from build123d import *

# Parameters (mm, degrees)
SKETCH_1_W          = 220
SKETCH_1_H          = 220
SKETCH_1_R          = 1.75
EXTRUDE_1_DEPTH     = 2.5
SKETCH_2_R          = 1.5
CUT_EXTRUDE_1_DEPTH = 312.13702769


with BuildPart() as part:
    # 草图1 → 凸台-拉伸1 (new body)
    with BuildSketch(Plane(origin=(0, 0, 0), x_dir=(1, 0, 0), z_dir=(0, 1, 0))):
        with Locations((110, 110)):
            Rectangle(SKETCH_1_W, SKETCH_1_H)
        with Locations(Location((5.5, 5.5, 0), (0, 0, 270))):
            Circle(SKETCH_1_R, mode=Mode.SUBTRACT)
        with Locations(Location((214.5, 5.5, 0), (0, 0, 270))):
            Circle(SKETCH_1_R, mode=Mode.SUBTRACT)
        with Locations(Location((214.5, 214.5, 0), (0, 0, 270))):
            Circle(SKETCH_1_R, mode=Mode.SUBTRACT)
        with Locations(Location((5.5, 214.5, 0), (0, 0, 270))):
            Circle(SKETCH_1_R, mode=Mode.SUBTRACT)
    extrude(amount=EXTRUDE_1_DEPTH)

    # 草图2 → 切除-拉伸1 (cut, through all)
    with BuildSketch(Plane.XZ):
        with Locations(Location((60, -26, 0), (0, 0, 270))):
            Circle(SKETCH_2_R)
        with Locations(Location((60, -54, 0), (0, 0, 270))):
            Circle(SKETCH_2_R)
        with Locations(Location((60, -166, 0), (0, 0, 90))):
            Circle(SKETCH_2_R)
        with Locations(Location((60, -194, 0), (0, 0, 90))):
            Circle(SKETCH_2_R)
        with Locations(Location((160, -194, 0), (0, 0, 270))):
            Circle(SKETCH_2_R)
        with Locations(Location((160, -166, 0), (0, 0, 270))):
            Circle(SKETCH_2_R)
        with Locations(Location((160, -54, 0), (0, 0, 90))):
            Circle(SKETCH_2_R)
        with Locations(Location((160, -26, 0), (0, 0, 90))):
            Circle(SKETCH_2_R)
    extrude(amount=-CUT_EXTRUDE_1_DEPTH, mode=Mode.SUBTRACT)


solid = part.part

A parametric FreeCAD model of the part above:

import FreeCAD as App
import Part
import Sketcher

V = App.Vector


def add_polygon(sketch, points):
    """Adds a closed chain of lines whose ends are joined by coincident constraints."""
    first, n = sketch.GeometryCount, len(points)
    for a, b in zip(points, points[1:] + points[:1]):
        sketch.addGeometry(Part.LineSegment(App.Vector(*a, 0), App.Vector(*b, 0)), False)
    for i in range(n):
        sketch.addConstraint(Sketcher.Constraint("Coincident", first + i, 2, first + (i + 1) % n, 1))

doc = App.newDocument("Part")
params = doc.addObject("Spreadsheet::Sheet", "Params")
for row, (alias, value) in enumerate([
    ("sketch1_diameter", "3.5 mm"),
    ("sketch1_width", "220 mm"),
    ("pad1_length", "2.5 mm"),
    ("sketch2_diameter", "3 mm"),
], start=1):
    params.set(f"A{row}", alias)
    params.set(f"B{row}", "=" + value)
    params.setAlias(f"B{row}", alias)

body = doc.addObject("PartDesign::Body", "Body")

# Sketch on XZ plane
sketch1 = doc.addObject("Sketcher::SketchObject", "Sketch")
body.addObject(sketch1)
sketch1.AttachmentSupport = (doc.XZ_Plane, [""])
sketch1.MapMode = "FlatFace"
add_polygon(sketch1, [(0, -220), (0, 0), (220, 0), (220, -220)])  # lines 0-3
sketch1.addGeometry(Part.Circle(V(5.5, -5.5, 0), V(0, 0, 1), 1.8), False)  # 4
sketch1.addGeometry(Part.Circle(V(214.5, -5.5, 0), V(0, 0, 1), 1.8), False)  # 5
sketch1.addGeometry(Part.Circle(V(5.5, -214.5, 0), V(0, 0, 1), 1.8), False)  # 6
sketch1.addGeometry(Part.Circle(V(214.5, -214.5, 0), V(0, 0, 1), 1.8), False)  # 7
sketch1.addConstraint([
    Sketcher.Constraint("Vertical", 0),
    Sketcher.Constraint("Horizontal", 1),
    Sketcher.Constraint("Vertical", 2),
    Sketcher.Constraint("Horizontal", 3),
    Sketcher.Constraint("Coincident", 0, 2, -1, 1),
    Sketcher.Constraint("Equal", 4, 5),
    Sketcher.Constraint("Equal", 5, 6),
    Sketcher.Constraint("Equal", 6, 7),
    Sketcher.Constraint("Horizontal", 4, 3, 5, 3),
    Sketcher.Constraint("Horizontal", 6, 3, 7, 3),
    Sketcher.Constraint("Vertical", 4, 3, 6, 3),
    Sketcher.Constraint("Vertical", 5, 3, 7, 3),
    Sketcher.Constraint("Equal", 3, 0),
    Sketcher.Constraint("Diameter", 4, 3.5),
    Sketcher.Constraint("DistanceX", 1, 1, 1, 2, 220.0),
    Sketcher.Constraint("DistanceX", 4, 3, 5, 3, 209.0),
    Sketcher.Constraint("DistanceY", 6, 3, 4, 3, 209.0),
    Sketcher.Constraint("DistanceX", -1, 1, 4, 3, 5.5),
    Sketcher.Constraint("DistanceY", 4, 3, -1, 1, 5.5),
])
sketch1.setExpression("Constraints[17]", "Params.sketch1_diameter")
sketch1.setExpression("Constraints[18]", "Params.sketch1_width")
pad1 = doc.addObject("PartDesign::Pad", "Pad")
body.addObject(pad1)
pad1.Profile = sketch1
pad1.setExpression("Length", "Params.pad1_length")
pad1.Reversed = True

# Sketch on XZ plane
sketch2 = doc.addObject("Sketcher::SketchObject", "Sketch001")
body.addObject(sketch2)
sketch2.AttachmentSupport = (doc.XZ_Plane, [""])
sketch2.MapMode = "FlatFace"
sketch2.addGeometry([
    Part.Circle(V(60, -26, 0), V(0, 0, 1), 1.5),  # 0
    Part.Circle(V(60, -54, 0), V(0, 0, 1), 1.5),  # 1
    Part.Circle(V(60, -166, 0), V(0, 0, 1), 1.5),  # 2
    Part.Circle(V(60, -194, 0), V(0, 0, 1), 1.5),  # 3
    Part.Circle(V(160, -194, 0), V(0, 0, 1), 1.5),  # 4
    Part.Circle(V(160, -166, 0), V(0, 0, 1), 1.5),  # 5
    Part.Circle(V(160, -54, 0), V(0, 0, 1), 1.5),  # 6
    Part.Circle(V(160, -26, 0), V(0, 0, 1), 1.5),  # 7
], False)
sketch2.addConstraint([
    Sketcher.Constraint("Equal", 0, 1),
    Sketcher.Constraint("Equal", 1, 2),
    Sketcher.Constraint("Equal", 2, 3),
    Sketcher.Constraint("Equal", 3, 4),
    Sketcher.Constraint("Equal", 4, 5),
    Sketcher.Constraint("Equal", 5, 6),
    Sketcher.Constraint("Equal", 6, 7),
    Sketcher.Constraint("Horizontal", 3, 3, 4, 3),
    Sketcher.Constraint("Horizontal", 2, 3, 5, 3),
    Sketcher.Constraint("Horizontal", 1, 3, 6, 3),
    Sketcher.Constraint("Horizontal", 0, 3, 7, 3),
    Sketcher.Constraint("Vertical", 0, 3, 1, 3),
    Sketcher.Constraint("Vertical", 1, 3, 2, 3),
    Sketcher.Constraint("Vertical", 2, 3, 3, 3),
    Sketcher.Constraint("Vertical", 4, 3, 5, 3),
    Sketcher.Constraint("Vertical", 5, 3, 6, 3),
    Sketcher.Constraint("Vertical", 6, 3, 7, 3),
    Sketcher.Constraint("Diameter", 0, 3.0),
    Sketcher.Constraint("DistanceX", -1, 1, 0, 3, 60.0),
    Sketcher.Constraint("DistanceY", 0, 3, -1, 1, 26.0),
    Sketcher.Constraint("DistanceY", 1, 3, -1, 1, 54.0),
    Sketcher.Constraint("DistanceY", 2, 3, -1, 1, 166.0),
    Sketcher.Constraint("DistanceY", 3, 3, -1, 1, 194.0),
    Sketcher.Constraint("DistanceX", -1, 1, 4, 3, 160.0),
])
sketch2.setExpression("Constraints[17]", "Params.sketch2_diameter")
pocket1 = doc.addObject("PartDesign::Pocket", "Pocket")
body.addObject(pocket1)
pocket1.Profile = sketch2
pocket1.Type = "ThroughAll"

doc.recompute()
